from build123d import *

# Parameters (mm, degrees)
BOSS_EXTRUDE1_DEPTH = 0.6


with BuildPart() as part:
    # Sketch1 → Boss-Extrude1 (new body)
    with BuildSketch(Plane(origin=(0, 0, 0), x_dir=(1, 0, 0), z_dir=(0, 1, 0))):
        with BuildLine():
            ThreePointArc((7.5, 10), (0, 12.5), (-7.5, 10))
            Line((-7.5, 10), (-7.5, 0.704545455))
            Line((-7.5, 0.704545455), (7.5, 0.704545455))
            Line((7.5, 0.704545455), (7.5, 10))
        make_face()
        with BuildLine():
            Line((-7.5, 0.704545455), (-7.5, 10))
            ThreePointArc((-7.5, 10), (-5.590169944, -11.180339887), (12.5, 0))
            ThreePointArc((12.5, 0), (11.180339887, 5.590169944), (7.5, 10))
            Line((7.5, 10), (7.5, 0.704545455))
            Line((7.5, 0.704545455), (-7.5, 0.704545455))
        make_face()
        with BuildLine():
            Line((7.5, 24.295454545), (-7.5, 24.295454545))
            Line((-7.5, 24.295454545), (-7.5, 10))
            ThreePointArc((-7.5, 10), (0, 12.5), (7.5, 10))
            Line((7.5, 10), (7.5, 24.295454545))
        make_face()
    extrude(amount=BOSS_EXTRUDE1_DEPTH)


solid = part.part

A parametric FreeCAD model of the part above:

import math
import FreeCAD as App
import Part
import Sketcher

doc = App.newDocument("Part")
body = doc.addObject("PartDesign::Body", "Body")

# Sketch on XZ plane
sketch1 = body.newObject("Sketcher::SketchObject", "Sketch")
sketch1.AttachmentSupport = (doc.getObject("XZ_Plane"), [""])
sketch1.MapMode = "FlatFace"
sketch1.addGeometry([
    Part.ArcOfCircle(Part.Circle(App.Vector(0, 0, 0), App.Vector(0, 0, 1), 12), math.radians(0), math.radians(233)),  # 0
    Part.ArcOfCircle(Part.Circle(App.Vector(0, 0, 0), App.Vector(0, 0, 1), 13), math.radians(-53), math.radians(0)),  # 1
    Part.LineSegment(App.Vector(8, -10, 0), App.Vector(8, -24, 0)),  # 2
    Part.LineSegment(App.Vector(8, -24, 0), App.Vector(-8, -24, 0)),  # 3
    Part.LineSegment(App.Vector(-8, -24, 0), App.Vector(-8, -10, 0)),  # 4
], False)
sketch1.addConstraint([
    Sketcher.Constraint("Tangent", 0, 1, 1, 2),
    Sketcher.Constraint("Coincident", 1, 1, 2, 1),
    Sketcher.Constraint("Coincident", 2, 2, 3, 1),
    Sketcher.Constraint("Coincident", 3, 2, 4, 1),
    Sketcher.Constraint("Coincident", 4, 2, 0, 2),
    Sketcher.Constraint("Vertical", 2),
    Sketcher.Constraint("Horizontal", 3),
    Sketcher.Constraint("Vertical", 4),
    Sketcher.Constraint("Coincident", 0, 3, -1, 1),
    Sketcher.Constraint("Equal", 0, 1),
    Sketcher.Constraint("PointOnObject", 0, 1, -1),
    Sketcher.Constraint("Horizontal", 1, 1, 4, 2),
    Sketcher.Constraint("Radius", 0, 12.5),
    Sketcher.Constraint("DistanceX", 3, 2, 3, 1, 15.0),
    Sketcher.Constraint("DistanceY", 2, 2, 2, 1, 14.295455),
])
pad1 = body.newObject("PartDesign::Pad", "Pad")
pad1.Profile = sketch1
pad1.Length = 0.6
pad1.Reversed = True

doc.recompute()
